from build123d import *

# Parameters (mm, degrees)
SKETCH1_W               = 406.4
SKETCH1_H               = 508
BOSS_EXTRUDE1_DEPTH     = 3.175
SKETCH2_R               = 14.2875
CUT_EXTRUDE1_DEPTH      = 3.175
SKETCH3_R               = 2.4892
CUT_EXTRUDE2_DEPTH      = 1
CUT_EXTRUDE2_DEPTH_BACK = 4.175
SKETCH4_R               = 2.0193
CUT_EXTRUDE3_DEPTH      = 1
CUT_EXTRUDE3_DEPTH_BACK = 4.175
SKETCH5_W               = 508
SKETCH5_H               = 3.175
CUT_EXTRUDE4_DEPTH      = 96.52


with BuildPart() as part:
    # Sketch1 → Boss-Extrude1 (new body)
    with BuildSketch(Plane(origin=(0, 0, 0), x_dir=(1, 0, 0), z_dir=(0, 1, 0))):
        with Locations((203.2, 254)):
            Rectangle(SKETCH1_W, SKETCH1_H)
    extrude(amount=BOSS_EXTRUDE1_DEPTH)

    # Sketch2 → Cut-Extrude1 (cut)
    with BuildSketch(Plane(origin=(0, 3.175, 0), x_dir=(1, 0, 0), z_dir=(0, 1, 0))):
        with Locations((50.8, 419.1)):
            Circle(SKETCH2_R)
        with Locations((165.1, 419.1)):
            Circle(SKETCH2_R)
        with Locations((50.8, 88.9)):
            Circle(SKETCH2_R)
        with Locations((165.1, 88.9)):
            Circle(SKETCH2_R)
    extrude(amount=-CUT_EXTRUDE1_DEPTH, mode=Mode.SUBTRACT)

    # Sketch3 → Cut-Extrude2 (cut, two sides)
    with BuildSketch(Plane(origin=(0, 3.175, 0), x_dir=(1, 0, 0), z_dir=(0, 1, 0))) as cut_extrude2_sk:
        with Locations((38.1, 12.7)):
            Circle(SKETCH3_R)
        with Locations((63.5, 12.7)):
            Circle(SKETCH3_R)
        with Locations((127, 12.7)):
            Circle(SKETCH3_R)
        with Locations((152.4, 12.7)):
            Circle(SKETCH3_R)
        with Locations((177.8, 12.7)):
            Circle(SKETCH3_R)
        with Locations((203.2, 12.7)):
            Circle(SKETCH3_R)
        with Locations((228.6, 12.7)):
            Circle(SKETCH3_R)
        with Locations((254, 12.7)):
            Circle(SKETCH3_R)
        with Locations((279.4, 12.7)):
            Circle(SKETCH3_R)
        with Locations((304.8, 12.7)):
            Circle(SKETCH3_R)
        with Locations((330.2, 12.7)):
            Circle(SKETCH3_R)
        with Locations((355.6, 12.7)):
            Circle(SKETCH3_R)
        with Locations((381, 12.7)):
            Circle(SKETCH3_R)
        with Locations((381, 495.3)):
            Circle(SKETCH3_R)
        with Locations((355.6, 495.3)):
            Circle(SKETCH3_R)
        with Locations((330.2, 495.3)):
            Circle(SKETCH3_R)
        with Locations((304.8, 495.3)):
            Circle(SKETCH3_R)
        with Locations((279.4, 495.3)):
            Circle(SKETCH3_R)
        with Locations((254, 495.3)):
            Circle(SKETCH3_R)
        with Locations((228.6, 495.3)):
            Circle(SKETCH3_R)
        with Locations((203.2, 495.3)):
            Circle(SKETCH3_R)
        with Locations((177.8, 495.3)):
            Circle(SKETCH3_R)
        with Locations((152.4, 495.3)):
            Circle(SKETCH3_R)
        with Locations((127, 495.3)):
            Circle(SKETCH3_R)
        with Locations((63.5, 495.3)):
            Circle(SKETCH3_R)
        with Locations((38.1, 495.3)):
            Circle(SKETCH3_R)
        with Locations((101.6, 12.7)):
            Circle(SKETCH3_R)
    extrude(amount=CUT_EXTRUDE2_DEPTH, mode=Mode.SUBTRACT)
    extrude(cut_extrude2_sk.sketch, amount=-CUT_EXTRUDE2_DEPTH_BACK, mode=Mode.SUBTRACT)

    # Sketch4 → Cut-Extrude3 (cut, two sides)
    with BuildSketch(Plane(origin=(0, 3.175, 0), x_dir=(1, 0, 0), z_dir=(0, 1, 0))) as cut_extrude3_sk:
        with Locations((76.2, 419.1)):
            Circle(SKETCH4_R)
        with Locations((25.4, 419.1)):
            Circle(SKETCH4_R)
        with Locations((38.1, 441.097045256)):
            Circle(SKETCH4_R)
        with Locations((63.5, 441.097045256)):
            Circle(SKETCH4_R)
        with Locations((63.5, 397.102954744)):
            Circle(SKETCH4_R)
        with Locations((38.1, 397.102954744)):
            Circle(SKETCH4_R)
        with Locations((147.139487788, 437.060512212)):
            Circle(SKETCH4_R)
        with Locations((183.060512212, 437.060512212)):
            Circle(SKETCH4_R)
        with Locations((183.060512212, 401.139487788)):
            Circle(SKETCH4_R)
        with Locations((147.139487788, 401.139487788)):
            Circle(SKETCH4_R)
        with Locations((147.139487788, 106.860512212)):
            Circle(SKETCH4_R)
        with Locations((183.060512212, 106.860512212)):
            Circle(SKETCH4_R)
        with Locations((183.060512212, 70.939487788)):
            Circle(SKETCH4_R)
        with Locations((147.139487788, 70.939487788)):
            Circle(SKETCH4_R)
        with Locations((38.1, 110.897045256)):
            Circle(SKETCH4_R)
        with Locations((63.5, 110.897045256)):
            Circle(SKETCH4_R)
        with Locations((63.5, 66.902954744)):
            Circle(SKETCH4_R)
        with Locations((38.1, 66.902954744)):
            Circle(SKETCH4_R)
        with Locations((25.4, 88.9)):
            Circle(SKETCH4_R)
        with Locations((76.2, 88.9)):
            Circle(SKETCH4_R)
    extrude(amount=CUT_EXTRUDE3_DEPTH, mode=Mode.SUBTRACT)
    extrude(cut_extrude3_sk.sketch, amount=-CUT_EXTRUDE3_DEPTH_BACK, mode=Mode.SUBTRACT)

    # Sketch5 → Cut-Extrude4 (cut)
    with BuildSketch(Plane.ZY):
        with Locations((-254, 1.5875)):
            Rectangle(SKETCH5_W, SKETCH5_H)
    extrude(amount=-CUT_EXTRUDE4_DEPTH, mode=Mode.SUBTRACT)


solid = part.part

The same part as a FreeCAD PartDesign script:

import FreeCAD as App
import Part
import Sketcher
Q = App.Units.Quantity


def add_polygon(sketch, points):
    """Adds a closed chain of lines whose ends are joined by coincident constraints."""
    first, n = sketch.GeometryCount, len(points)
    for a, b in zip(points, points[1:] + points[:1]):
        sketch.addGeometry(Part.LineSegment(App.Vector(*a, 0), App.Vector(*b, 0)), False)
    for i in range(n):
        sketch.addConstraint(Sketcher.Constraint("Coincident", first + i, 2, first + (i + 1) % n, 1))

doc = App.newDocument("Part")
body = doc.addObject("PartDesign::Body", "Body")

# Sketch on XZ plane
sketch1 = body.newObject("Sketcher::SketchObject", "Sketch")
sketch1.AttachmentSupport = (doc.getObject("XZ_Plane"), [""])
sketch1.MapMode = "FlatFace"
add_polygon(sketch1, [(0, -508), (0, 0), (406, 0), (406, -508)])  # lines 0-3
sketch1.addConstraint([
    Sketcher.Constraint("Vertical", 0),
    Sketcher.Constraint("Horizontal", 1),
    Sketcher.Constraint("Vertical", 2),
    Sketcher.Constraint("Horizontal", 3),
    Sketcher.Constraint("Coincident", 0, 2, -1, 1),
    Sketcher.Constraint("DistanceX", 1, 1, 1, 2, Q("16 in")),
    Sketcher.Constraint("DistanceY", 0, 1, 0, 2, Q("20 in")),
])
pad1 = body.newObject("PartDesign::Pad", "Pad")
pad1.Profile = sketch1
pad1.Length = Q("0.125 in")
pad1.Reversed = True

# Sketch on XZ plane
sketch2 = body.newObject("Sketcher::SketchObject", "Sketch001")
sketch2.AttachmentSupport = (doc.getObject("XZ_Plane"), [""])
sketch2.MapMode = "FlatFace"
sketch2.AttachmentOffset = App.Placement(App.Vector(0, 0, -0.125 * 25.4), App.Rotation())
sketch2.addGeometry([
    Part.Circle(App.Vector(51, -419, 0), App.Vector(0, 0, 1), 14),
    Part.Circle(App.Vector(165, -419, 0), App.Vector(0, 0, 1), 14),
    Part.Circle(App.Vector(51, -89, 0), App.Vector(0, 0, 1), 14),
    Part.Circle(App.Vector(165, -89, 0), App.Vector(0, 0, 1), 14),
], False)
sketch2.addConstraint([
    Sketcher.Constraint("Equal", 0, 1),
    Sketcher.Constraint("Equal", 1, 2),
    Sketcher.Constraint("Equal", 2, 3),
    Sketcher.Constraint("Horizontal", 0, 3, 1, 3),
    Sketcher.Constraint("Horizontal", 2, 3, 3, 3),
    Sketcher.Constraint("Vertical", 0, 3, 2, 3),
    Sketcher.Constraint("Vertical", 1, 3, 3, 3),
    Sketcher.Constraint("Diameter", 0, Q("1.125 in")),
    Sketcher.Constraint("DistanceX", -1, 1, 0, 3, Q("2 in")),
    Sketcher.Constraint("DistanceY", 0, 3, 2, 3, Q("13 in")),
    Sketcher.Constraint("DistanceY", 0, 3, -1, 1, Q("16.5 in")),
    Sketcher.Constraint("DistanceX", -1, 1, 1, 3, Q("6.5 in")),
])
pocket1 = body.newObject("PartDesign::Pocket", "Pocket")
pocket1.Profile = sketch2
pocket1.Length = Q("0.125 in")
pocket1.Reversed = True

# Sketch on XZ plane
sketch3 = body.newObject("Sketcher::SketchObject", "Sketch002")
sketch3.AttachmentSupport = (doc.getObject("XZ_Plane"), [""])
sketch3.MapMode = "FlatFace"
sketch3.AttachmentOffset = App.Placement(App.Vector(0, 0, -0.125 * 25.4), App.Rotation())
sketch3.addGeometry([
    Part.Circle(App.Vector(38.1, -12.7, 0), App.Vector(0, 0, 1), 2.5),  # 0
    Part.Circle(App.Vector(63.5, -12.7, 0), App.Vector(0, 0, 1), 2.5),  # 1
    Part.Circle(App.Vector(127, -12.7, 0), App.Vector(0, 0, 1), 2.5),  # 2
    Part.Circle(App.Vector(152.4, -12.7, 0), App.Vector(0, 0, 1), 2.5),  # 3
    Part.Circle(App.Vector(177.8, -12.7, 0), App.Vector(0, 0, 1), 2.5),  # 4
    Part.Circle(App.Vector(203.2, -12.7, 0), App.Vector(0, 0, 1), 2.5),  # 5
    Part.Circle(App.Vector(228.6, -12.7, 0), App.Vector(0, 0, 1), 2.5),  # 6
    Part.Circle(App.Vector(254, -12.7, 0), App.Vector(0, 0, 1), 2.5),  # 7
    Part.Circle(App.Vector(279.4, -12.7, 0), App.Vector(0, 0, 1), 2.5),  # 8
    Part.Circle(App.Vector(304.8, -12.7, 0), App.Vector(0, 0, 1), 2.5),  # 9
    Part.Circle(App.Vector(330.2, -12.7, 0), App.Vector(0, 0, 1), 2.5),  # 10
    Part.Circle(App.Vector(355.6, -12.7, 0), App.Vector(0, 0, 1), 2.5),  # 11
    Part.Circle(App.Vector(381, -12.7, 0), App.Vector(0, 0, 1), 2.5),  # 12
    Part.Circle(App.Vector(381, -495.3, 0), App.Vector(0, 0, 1), 2.5),  # 13
    Part.Circle(App.Vector(355.6, -495.3, 0), App.Vector(0, 0, 1), 2.5),  # 14
    Part.Circle(App.Vector(330.2, -495.3, 0), App.Vector(0, 0, 1), 2.5),  # 15
    Part.Circle(App.Vector(304.8, -495.3, 0), App.Vector(0, 0, 1), 2.5),  # 16
    Part.Circle(App.Vector(279.4, -495.3, 0), App.Vector(0, 0, 1), 2.5),  # 17
    Part.Circle(App.Vector(254, -495.3, 0), App.Vector(0, 0, 1), 2.5),  # 18
    Part.Circle(App.Vector(228.6, -495.3, 0), App.Vector(0, 0, 1), 2.5),  # 19
    Part.Circle(App.Vector(203.2, -495.3, 0), App.Vector(0, 0, 1), 2.5),  # 20
    Part.Circle(App.Vector(177.8, -495.3, 0), App.Vector(0, 0, 1), 2.5),  # 21
    Part.Circle(App.Vector(152.4, -495.3, 0), App.Vector(0, 0, 1), 2.5),  # 22
    Part.Circle(App.Vector(127, -495.3, 0), App.Vector(0, 0, 1), 2.5),  # 23
    Part.Circle(App.Vector(63.5, -495.3, 0), App.Vector(0, 0, 1), 2.5),  # 24
    Part.Circle(App.Vector(38.1, -495.3, 0), App.Vector(0, 0, 1), 2.5),  # 25
    Part.Circle(App.Vector(101.6, -12.7, 0), App.Vector(0, 0, 1), 2.5),  # 26
], False)
sketch3.addConstraint([
    Sketcher.Constraint("Equal", 0, 1),
    Sketcher.Constraint("Equal", 1, 2),
    Sketcher.Constraint("Equal", 2, 3),
    Sketcher.Constraint("Equal", 3, 4),
    Sketcher.Constraint("Equal", 4, 5),
    Sketcher.Constraint("Equal", 5, 6),
    Sketcher.Constraint("Equal", 6, 7),
    Sketcher.Constraint("Equal", 7, 8),
    Sketcher.Constraint("Equal", 8, 9),
    Sketcher.Constraint("Equal", 9, 10),
    Sketcher.Constraint("Equal", 10, 11),
    Sketcher.Constraint("Equal", 11, 12),
    Sketcher.Constraint("Equal", 12, 13),
    Sketcher.Constraint("Equal", 13, 14),
    Sketcher.Constraint("Equal", 14, 15),
    Sketcher.Constraint("Equal", 15, 16),
    Sketcher.Constraint("Equal", 16, 17),
    Sketcher.Constraint("Equal", 17, 18),
    Sketcher.Constraint("Equal", 18, 19),
    Sketcher.Constraint("Equal", 19, 20),
    Sketcher.Constraint("Equal", 20, 21),
    Sketcher.Constraint("Equal", 21, 22),
    Sketcher.Constraint("Equal", 22, 23),
    Sketcher.Constraint("Equal", 23, 24),
    Sketcher.Constraint("Equal", 24, 25),
    Sketcher.Constraint("Equal", 25, 26),
    Sketcher.Constraint("Horizontal", 0, 3, 1, 3),
    Sketcher.Constraint("Horizontal", 1, 3, 2, 3),
    Sketcher.Constraint("Horizontal", 2, 3, 3, 3),
    Sketcher.Constraint("Horizontal", 3, 3, 4, 3),
    Sketcher.Constraint("Horizontal", 4, 3, 5, 3),
    Sketcher.Constraint("Horizontal", 5, 3, 6, 3),
    Sketcher.Constraint("Horizontal", 6, 3, 7, 3),
    Sketcher.Constraint("Horizontal", 7, 3, 8, 3),
    Sketcher.Constraint("Horizontal", 8, 3, 9, 3),
    Sketcher.Constraint("Horizontal", 9, 3, 10, 3),
    Sketcher.Constraint("Horizontal", 10, 3, 11, 3),
    Sketcher.Constraint("Horizontal", 11, 3, 12, 3),
    Sketcher.Constraint("Horizontal", 13, 3, 14, 3),
    Sketcher.Constraint("Horizontal", 14, 3, 15, 3),
    Sketcher.Constraint("Horizontal", 15, 3, 16, 3),
    Sketcher.Constraint("Horizontal", 16, 3, 17, 3),
    Sketcher.Constraint("Horizontal", 17, 3, 18, 3),
    Sketcher.Constraint("Horizontal", 18, 3, 19, 3),
    Sketcher.Constraint("Horizontal", 19, 3, 20, 3),
    Sketcher.Constraint("Horizontal", 20, 3, 21, 3),
    Sketcher.Constraint("Horizontal", 21, 3, 22, 3),
    Sketcher.Constraint("Horizontal", 22, 3, 23, 3),
    Sketcher.Constraint("Horizontal", 23, 3, 24, 3),
    Sketcher.Constraint("Horizontal", 24, 3, 25, 3),
    Sketcher.Constraint("Horizontal", 12, 3, 26, 3),
    Sketcher.Constraint("Vertical", 12, 3, 13, 3),
    Sketcher.Constraint("Vertical", 11, 3, 14, 3),
    Sketcher.Constraint("Vertical", 10, 3, 15, 3),
    Sketcher.Constraint("Vertical", 9, 3, 16, 3),
    Sketcher.Constraint("Vertical", 8, 3, 17, 3),
    Sketcher.Constraint("Vertical", 7, 3, 18, 3),
    Sketcher.Constraint("Vertical", 6, 3, 19, 3),
    Sketcher.Constraint("Vertical", 5, 3, 20, 3),
    Sketcher.Constraint("Vertical", 4, 3, 21, 3),
    Sketcher.Constraint("Vertical", 3, 3, 22, 3),
    Sketcher.Constraint("Vertical", 2, 3, 23, 3),
    Sketcher.Constraint("Vertical", 1, 3, 24, 3),
    Sketcher.Constraint("Vertical", 0, 3, 25, 3),
    Sketcher.Constraint("Diameter", 0, Q("0.196 in")),
    Sketcher.Constraint("DistanceX", -1, 1, 2, 3, Q("5 in")),
    Sketcher.Constraint("DistanceX", -1, 1, 3, 3, Q("6 in")),
    Sketcher.Constraint("DistanceX", -1, 1, 4, 3, Q("7 in")),
    Sketcher.Constraint("DistanceX", -1, 1, 5, 3, Q("8 in")),
    Sketcher.Constraint("DistanceX", -1, 1, 6, 3, Q("9 in")),
    Sketcher.Constraint("DistanceX", -1, 1, 7, 3, Q("10 in")),
    Sketcher.Constraint("DistanceX", -1, 1, 8, 3, Q("11 in")),
    Sketcher.Constraint("DistanceX", -1, 1, 9, 3, Q("12 in")),
    Sketcher.Constraint("DistanceX", -1, 1, 10, 3, Q("13 in")),
    Sketcher.Constraint("DistanceX", -1, 1, 11, 3, Q("14 in")),
    Sketcher.Constraint("DistanceX", -1, 1, 12, 3, Q("15 in")),
    Sketcher.Constraint("DistanceX", -1, 1, 26, 3, Q("4 in")),
    Sketcher.Constraint("DistanceX", 0, 3, 1, 3, Q("1 in")),
    Sketcher.Constraint("DistanceY", 13, 3, 12, 3, Q("19 in")),
    Sketcher.Constraint("DistanceX", -1, 1, 0, 3, Q("1.5 in")),
    Sketcher.Constraint("DistanceY", 0, 3, -1, 1, Q("0.5 in")),
])
pocket2 = body.newObject("PartDesign::Pocket", "Pocket001")
pocket2.Profile = sketch3
pocket2.Type = "ThroughAll"
pocket2.Midplane = True

# Sketch on XZ plane
sketch4 = body.newObject("Sketcher::SketchObject", "Sketch003")
sketch4.AttachmentSupport = (doc.getObject("XZ_Plane"), [""])
sketch4.MapMode = "FlatFace"
sketch4.AttachmentOffset = App.Placement(App.Vector(0, 0, -0.125 * 25.4), App.Rotation())
sketch4.addGeometry([
    Part.Circle(App.Vector(76.2, -419.1, 0), App.Vector(0, 0, 1), 2),  # 0
    Part.Circle(App.Vector(25.4, -419.1, 0), App.Vector(0, 0, 1), 2),  # 1
    Part.Circle(App.Vector(38.1, -441.1, 0), App.Vector(0, 0, 1), 2),  # 2
    Part.Circle(App.Vector(63.5, -441.1, 0), App.Vector(0, 0, 1), 2),  # 3
    Part.Circle(App.Vector(63.5, -397.1, 0), App.Vector(0, 0, 1), 2),  # 4
    Part.Circle(App.Vector(38.1, -397.1, 0), App.Vector(0, 0, 1), 2),  # 5
    Part.Circle(App.Vector(147.1, -437.1, 0), App.Vector(0, 0, 1), 2),  # 6
    Part.Circle(App.Vector(183.1, -437.1, 0), App.Vector(0, 0, 1), 2),  # 7
    Part.Circle(App.Vector(183.1, -401.1, 0), App.Vector(0, 0, 1), 2),  # 8
    Part.Circle(App.Vector(147.1, -401.1, 0), App.Vector(0, 0, 1), 2),  # 9
    Part.Circle(App.Vector(147.1, -106.9, 0), App.Vector(0, 0, 1), 2),  # 10
    Part.Circle(App.Vector(183.1, -106.9, 0), App.Vector(0, 0, 1), 2),  # 11
    Part.Circle(App.Vector(183.1, -70.9, 0), App.Vector(0, 0, 1), 2),  # 12
    Part.Circle(App.Vector(147.1, -70.9, 0), App.Vector(0, 0, 1), 2),  # 13
    Part.Circle(App.Vector(38.1, -110.9, 0), App.Vector(0, 0, 1), 2),  # 14
    Part.Circle(App.Vector(63.5, -110.9, 0), App.Vector(0, 0, 1), 2),  # 15
    Part.Circle(App.Vector(63.5, -66.9, 0), App.Vector(0, 0, 1), 2),  # 16
    Part.Circle(App.Vector(38.1, -66.9, 0), App.Vector(0, 0, 1), 2),  # 17
    Part.Circle(App.Vector(25.4, -88.9, 0), App.Vector(0, 0, 1), 2),  # 18
    Part.Circle(App.Vector(76.2, -88.9, 0), App.Vector(0, 0, 1), 2),  # 19
], False)
sketch4.addConstraint([
    Sketcher.Constraint("Equal", 0, 1),
    Sketcher.Constraint("Equal", 1, 2),
    Sketcher.Constraint("Equal", 2, 3),
    Sketcher.Constraint("Equal", 3, 4),
    Sketcher.Constraint("Equal", 4, 5),
    Sketcher.Constraint("Equal", 5, 6),
    Sketcher.Constraint("Equal", 6, 7),
    Sketcher.Constraint("Equal", 7, 8),
    Sketcher.Constraint("Equal", 8, 9),
    Sketcher.Constraint("Equal", 9, 10),
    Sketcher.Constraint("Equal", 10, 11),
    Sketcher.Constraint("Equal", 11, 12),
    Sketcher.Constraint("Equal", 12, 13),
    Sketcher.Constraint("Equal", 13, 14),
    Sketcher.Constraint("Equal", 14, 15),
    Sketcher.Constraint("Equal", 15, 16),
    Sketcher.Constraint("Equal", 16, 17),
    Sketcher.Constraint("Equal", 17, 18),
    Sketcher.Constraint("Equal", 18, 19),
    Sketcher.Constraint("Horizontal", 0, 3, 1, 3),
    Sketcher.Constraint("Horizontal", 2, 3, 3, 3),
    Sketcher.Constraint("Horizontal", 4, 3, 5, 3),
    Sketcher.Constraint("Horizontal", 6, 3, 7, 3),
    Sketcher.Constraint("Horizontal", 8, 3, 9, 3),
    Sketcher.Constraint("Horizontal", 10, 3, 11, 3),
    Sketcher.Constraint("Horizontal", 12, 3, 13, 3),
    Sketcher.Constraint("Horizontal", 14, 3, 15, 3),
    Sketcher.Constraint("Horizontal", 16, 3, 17, 3),
    Sketcher.Constraint("Horizontal", 18, 3, 19, 3),
    Sketcher.Constraint("Vertical", 3, 3, 4, 3),
    Sketcher.Constraint("Vertical", 2, 3, 5, 3),
    Sketcher.Constraint("Vertical", 7, 3, 8, 3),
    Sketcher.Constraint("Vertical", 6, 3, 9, 3),
    Sketcher.Constraint("Vertical", 9, 3, 10, 3),
    Sketcher.Constraint("Vertical", 8, 3, 11, 3),
    Sketcher.Constraint("Vertical", 11, 3, 12, 3),
    Sketcher.Constraint("Vertical", 10, 3, 13, 3),
    Sketcher.Constraint("Vertical", 5, 3, 14, 3),
    Sketcher.Constraint("Vertical", 4, 3, 15, 3),
    Sketcher.Constraint("Vertical", 15, 3, 16, 3),
    Sketcher.Constraint("Vertical", 14, 3, 17, 3),
    Sketcher.Constraint("Vertical", 1, 3, 18, 3),
    Sketcher.Constraint("Vertical", 0, 3, 19, 3),
    Sketcher.Constraint("Diameter", 0, Q("0.159 in")),
    Sketcher.Constraint("DistanceX", -1, 1, 0, 3, Q("3 in")),
    Sketcher.Constraint("DistanceX", -1, 1, 1, 3, Q("1 in")),
    Sketcher.Constraint("DistanceX", 2, 3, 3, 3, Q("1 in")),
    Sketcher.Constraint("DistanceY", 8, 3, 12, 3, Q("13 in")),
    Sketcher.Constraint("DistanceY", 0, 3, -1, 1, Q("16.5 in")),
    Sketcher.Constraint("DistanceX", -1, 1, 2, 3, Q("1.5 in")),
    Sketcher.Constraint("DistanceY", 18, 3, -1, 1, Q("3.5 in")),
    Sketcher.Constraint("DistanceY", 3, 3, 4, 3, Q("43.994091 mm")),
    Sketcher.Constraint("DistanceY", 5, 3, 14, 3, Q("286.205909 mm")),
    Sketcher.Constraint("DistanceY", 15, 3, 16, 3, Q("43.994091 mm")),
    Sketcher.Constraint("DistanceY", 2, 3, -1, 1, Q("441.097045 mm")),
    Sketcher.Constraint("DistanceX", -1, 1, 6, 3, Q("147.139488 mm")),
    Sketcher.Constraint("DistanceY", 6, 3, -1, 1, Q("437.060512 mm")),
    Sketcher.Constraint("DistanceX", -1, 1, 7, 3, Q("183.060512 mm")),
    Sketcher.Constraint("DistanceY", 8, 3, -1, 1, Q("401.139488 mm")),
    Sketcher.Constraint("DistanceY", 10, 3, -1, 1, Q("106.860512 mm")),
])
pocket3 = body.newObject("PartDesign::Pocket", "Pocket002")
pocket3.Profile = sketch4
pocket3.Type = "ThroughAll"
pocket3.Midplane = True

# Sketch on YZ plane
sketch5 = body.newObject("Sketcher::SketchObject", "Sketch004")
sketch5.AttachmentSupport = (doc.getObject("YZ_Plane"), [""])
sketch5.MapMode = "FlatFace"
add_polygon(sketch5, [(3.2, -508), (0, -508), (0, 0), (3.2, 0)])  # lines 0-3
sketch5.addConstraint([
    Sketcher.Constraint("Horizontal", 0),
    Sketcher.Constraint("Vertical", 1),
    Sketcher.Constraint("Horizontal", 2),
    Sketcher.Constraint("Vertical", 3),
    Sketcher.Constraint("Coincident", 1, 2, -1, 1),
    Sketcher.Constraint("DistanceY", 1, 1, 1, 2, Q("20 in")),
    Sketcher.Constraint("DistanceX", 0, 2, 0, 1, Q("0.125 in")),
])
pocket4 = body.newObject("PartDesign::Pocket", "Pocket003")
pocket4.Profile = sketch5
pocket4.Length = Q("3.8 in")
pocket4.Reversed = True

doc.recompute()
